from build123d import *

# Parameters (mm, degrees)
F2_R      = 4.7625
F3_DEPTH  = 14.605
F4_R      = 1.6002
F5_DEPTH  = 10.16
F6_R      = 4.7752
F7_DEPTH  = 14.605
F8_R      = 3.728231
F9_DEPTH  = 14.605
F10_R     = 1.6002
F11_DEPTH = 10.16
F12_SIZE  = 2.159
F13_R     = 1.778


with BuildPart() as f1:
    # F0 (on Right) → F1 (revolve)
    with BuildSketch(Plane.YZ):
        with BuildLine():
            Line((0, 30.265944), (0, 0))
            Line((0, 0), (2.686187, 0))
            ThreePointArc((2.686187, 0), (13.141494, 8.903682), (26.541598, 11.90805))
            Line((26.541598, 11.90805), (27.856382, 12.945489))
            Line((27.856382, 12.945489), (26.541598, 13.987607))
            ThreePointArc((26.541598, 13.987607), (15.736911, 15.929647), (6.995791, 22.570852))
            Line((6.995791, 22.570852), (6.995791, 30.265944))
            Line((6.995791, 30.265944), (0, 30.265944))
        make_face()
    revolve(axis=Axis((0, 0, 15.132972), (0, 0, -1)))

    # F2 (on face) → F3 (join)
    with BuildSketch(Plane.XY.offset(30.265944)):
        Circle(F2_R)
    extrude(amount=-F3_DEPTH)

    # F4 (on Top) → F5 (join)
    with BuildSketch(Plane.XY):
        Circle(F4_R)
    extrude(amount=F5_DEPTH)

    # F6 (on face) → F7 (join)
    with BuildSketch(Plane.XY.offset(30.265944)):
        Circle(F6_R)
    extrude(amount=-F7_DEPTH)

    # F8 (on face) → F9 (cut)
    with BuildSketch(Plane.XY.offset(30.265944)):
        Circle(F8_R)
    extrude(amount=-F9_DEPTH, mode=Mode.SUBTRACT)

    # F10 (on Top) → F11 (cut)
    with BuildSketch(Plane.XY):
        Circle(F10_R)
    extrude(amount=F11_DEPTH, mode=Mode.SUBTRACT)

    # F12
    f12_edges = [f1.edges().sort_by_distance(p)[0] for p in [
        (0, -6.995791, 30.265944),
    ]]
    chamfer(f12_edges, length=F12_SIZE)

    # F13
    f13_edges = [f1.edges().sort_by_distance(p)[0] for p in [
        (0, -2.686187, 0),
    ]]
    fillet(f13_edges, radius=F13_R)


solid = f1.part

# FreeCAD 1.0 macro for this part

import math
import FreeCAD as App
import Part
import Sketcher
from FreeCAD import Vector
Q = App.Units.Quantity


def edges_at(feature, points):
    """Names of the edges that pass closest to the given points."""
    edges = feature.Shape.Edges
    near = lambda p: min(range(len(edges)), key=lambda i: edges[i].distToShape(Part.Vertex(*p))[0])
    return sorted({f"Edge{near(p) + 1}" for p in points})

doc = App.newDocument("Part")
params = doc.addObject("Spreadsheet::Sheet", "Params")
for row, (alias, value) in enumerate([
    ("revolution_angle", "360 deg"),
    ("sketch2_diameter", "0.375 in"),
    ("pad1_length", "0.575 in"),
    ("sketch3_diameter", "0.126 in"),
    ("pad2_length", "0.4 in"),
    ("sketch4_diameter", "0.376 in"),
    ("pad3_length", "0.575 in"),
    ("pocket1_length", "0.575 in"),
    ("sketch6_diameter", "0.126 in"),
    ("pocket2_length", "0.4 in"),
    ("chamfer_size", "0.085 in"),
    ("fillet_radius", "0.07 in"),
], start=1):
    params.set(f"A{row}", alias)
    params.set(f"B{row}", "=" + value)
    params.setAlias(f"B{row}", alias)

body = doc.addObject("PartDesign::Body", "Body")

# Sketch on YZ plane
sketch1 = body.newObject("Sketcher::SketchObject", "Sketch")
sketch1.AttachmentSupport = (doc.getObject("YZ_Plane"), [""])
sketch1.MapMode = "FlatFace"
sketch1.addGeometry([
    Part.LineSegment(Vector(0, 30.3, 0), Vector(0, 0, 0)),  # 0
    Part.LineSegment(Vector(0, 0, 0), Vector(2.7, 0, 0)),  # 1
    Part.ArcOfCircle(Part.Circle(Vector(25.9, -16.7, 0), Vector(0, 0, 1), 28.6), math.radians(89), math.radians(144)),  # 2
    Part.LineSegment(Vector(26.5, 11.9, 0), Vector(27.9, 12.9, 0)),  # 3
    Part.LineSegment(Vector(27.9, 12.9, 0), Vector(26.5, 14, 0)),  # 4
    Part.ArcOfCircle(Part.Circle(Vector(25.2, 37.4, 0), Vector(0, 0, 1), 23.5), math.radians(-141), math.radians(-87)),  # 5
    Part.LineSegment(Vector(7, 22.6, 0), Vector(7, 30.3, 0)),  # 6
    Part.LineSegment(Vector(7, 30.3, 0), Vector(0, 30.3, 0)),  # 7
], False)
sketch1.addConstraint([
    Sketcher.Constraint("Coincident", 0, 2, 1, 1),
    Sketcher.Constraint("Coincident", 1, 2, 2, 2),
    Sketcher.Constraint("Coincident", 2, 1, 3, 1),
    Sketcher.Constraint("Coincident", 3, 2, 4, 1),
    Sketcher.Constraint("Coincident", 4, 2, 5, 2),
    Sketcher.Constraint("Coincident", 5, 1, 6, 1),
    Sketcher.Constraint("Coincident", 6, 2, 7, 1),
    Sketcher.Constraint("Coincident", 7, 2, 0, 1),
    Sketcher.Constraint("Vertical", 0),
    Sketcher.Constraint("Horizontal", 1),
    Sketcher.Constraint("Vertical", 6),
    Sketcher.Constraint("Horizontal", 7),
    Sketcher.Constraint("Coincident", 0, 2, -1, 1),
    Sketcher.Constraint("Vertical", 2, 1, 4, 2),
    Sketcher.Constraint("Radius", 5, 23.481262),
    Sketcher.Constraint("Radius", 2, 28.602428),
    Sketcher.Constraint("DistanceX", 7, 2, 7, 1, 6.995791),
    Sketcher.Constraint("DistanceX", -1, 1, 4, 2, 26.541598),
    Sketcher.Constraint("DistanceY", 2, 1, 5, 3, 25.5212),
    Sketcher.Constraint("DistanceX", 1, 1, 1, 2, 2.686187),
    Sketcher.Constraint("DistanceY", 0, 2, 0, 1, 30.265944),
    Sketcher.Constraint("DistanceY", 6, 1, 6, 2, 7.695092),
    Sketcher.Constraint("DistanceY", -1, 1, 5, 3, 37.42925),
    Sketcher.Constraint("DistanceX", -1, 1, 3, 2, 27.856382),
    Sketcher.Constraint("DistanceY", -1, 1, 3, 2, 12.945489),
])
revolution = body.newObject("PartDesign::Revolution", "Revolution")
revolution.Profile = sketch1
revolution.ReferenceAxis = (sketch1, ["V_Axis"])
revolution.setExpression("Angle", "Params.revolution_angle")

# Sketch on XY plane
sketch2 = body.newObject("Sketcher::SketchObject", "Sketch001")
sketch2.AttachmentSupport = (doc.getObject("XY_Plane"), [""])
sketch2.MapMode = "FlatFace"
sketch2.AttachmentOffset = App.Placement(Vector(0, 0, 30.265944), App.Rotation())
sketch2.addGeometry(Part.Circle(Vector(0, 0, 0), Vector(0, 0, 1), 4.8), False)
sketch2.addConstraint([
    Sketcher.Constraint("Coincident", 0, 3, -1, 1),
    Sketcher.Constraint("Diameter", 0, Q("0.375 in")),
])
sketch2.setExpression("Constraints[1]", "Params.sketch2_diameter")
pad1 = body.newObject("PartDesign::Pad", "Pad")
pad1.Profile = sketch2
pad1.setExpression("Length", "Params.pad1_length")
pad1.Reversed = True

# Sketch on XY plane
sketch3 = body.newObject("Sketcher::SketchObject", "Sketch002")
sketch3.AttachmentSupport = (doc.getObject("XY_Plane"), [""])
sketch3.MapMode = "FlatFace"
sketch3.addGeometry(Part.Circle(Vector(0, 0, 0), Vector(0, 0, 1), 1.6), False)
sketch3.addConstraint([
    Sketcher.Constraint("Coincident", 0, 3, -1, 1),
    Sketcher.Constraint("Diameter", 0, Q("0.126 in")),
])
sketch3.setExpression("Constraints[1]", "Params.sketch3_diameter")
pad2 = body.newObject("PartDesign::Pad", "Pad001")
pad2.Profile = sketch3
pad2.setExpression("Length", "Params.pad2_length")

# Sketch on XY plane
sketch4 = body.newObject("Sketcher::SketchObject", "Sketch003")
sketch4.AttachmentSupport = (doc.getObject("XY_Plane"), [""])
sketch4.MapMode = "FlatFace"
sketch4.AttachmentOffset = App.Placement(Vector(0, 0, 30.265944), App.Rotation())
sketch4.addGeometry(Part.Circle(Vector(0, 0, 0), Vector(0, 0, 1), 4.8), False)
sketch4.addConstraint([
    Sketcher.Constraint("Coincident", 0, 3, -1, 1),
    Sketcher.Constraint("Diameter", 0, Q("0.376 in")),
])
sketch4.setExpression("Constraints[1]", "Params.sketch4_diameter")
pad3 = body.newObject("PartDesign::Pad", "Pad002")
pad3.Profile = sketch4
pad3.setExpression("Length", "Params.pad3_length")
pad3.Reversed = True

# Sketch on XY plane
sketch5 = body.newObject("Sketcher::SketchObject", "Sketch004")
sketch5.AttachmentSupport = (doc.getObject("XY_Plane"), [""])
sketch5.MapMode = "FlatFace"
sketch5.AttachmentOffset = App.Placement(Vector(0, 0, 30.265944), App.Rotation())
sketch5.addGeometry(Part.Circle(Vector(0, 0, 0), Vector(0, 0, 1), 3.7), False)
sketch5.addConstraint([
    Sketcher.Constraint("Coincident", 0, 3, -1, 1),
    Sketcher.Constraint("Diameter", 0, 7.456462),
])
pocket1 = body.newObject("PartDesign::Pocket", "Pocket")
pocket1.Profile = sketch5
pocket1.setExpression("Length", "Params.pocket1_length")

# Sketch on XY plane
sketch6 = body.newObject("Sketcher::SketchObject", "Sketch005")
sketch6.AttachmentSupport = (doc.getObject("XY_Plane"), [""])
sketch6.MapMode = "FlatFace"
sketch6.addGeometry(Part.Circle(Vector(0, 0, 0), Vector(0, 0, 1), 1.6), False)
sketch6.addConstraint([
    Sketcher.Constraint("Coincident", 0, 3, -1, 1),
    Sketcher.Constraint("Diameter", 0, Q("0.126 in")),
])
sketch6.setExpression("Constraints[1]", "Params.sketch6_diameter")
pocket2 = body.newObject("PartDesign::Pocket", "Pocket001")
pocket2.Profile = sketch6
pocket2.setExpression("Length", "Params.pocket2_length")
pocket2.Reversed = True
doc.recompute()

chamfer = body.newObject("PartDesign::Chamfer", "Chamfer")
chamfer.Base = (pocket2, edges_at(pocket2, [(0, -6.996, 30.266)]))
chamfer.setExpression("Size", "Params.chamfer_size")
doc.recompute()

fillet = body.newObject("PartDesign::Fillet", "Fillet")
fillet.Base = (chamfer, edges_at(chamfer, [(0, -2.686, 0)]))
fillet.setExpression("Radius", "Params.fillet_radius")

doc.recompute()
